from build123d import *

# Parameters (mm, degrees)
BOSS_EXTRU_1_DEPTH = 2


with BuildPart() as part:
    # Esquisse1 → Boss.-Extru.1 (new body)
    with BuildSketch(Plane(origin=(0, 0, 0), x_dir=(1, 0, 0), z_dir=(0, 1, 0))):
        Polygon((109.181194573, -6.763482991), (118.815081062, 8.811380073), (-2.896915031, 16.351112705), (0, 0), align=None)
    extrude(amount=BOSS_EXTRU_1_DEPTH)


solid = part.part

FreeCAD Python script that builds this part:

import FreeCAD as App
import Part
import Sketcher
Q = App.Units.Quantity

doc = App.newDocument("Part")
body = doc.addObject("PartDesign::Body", "Body")

sketch1 = body.newObject("Sketcher::SketchObject", "Sketch")
sketch1.AttachmentSupport = (doc.getObject("XZ_Plane"), [""])
sketch1.MapMode = "FlatFace"
sketch1.addGeometry([
    Part.LineSegment(App.Vector(109, 7, 0), App.Vector(119, -9, 0)),
    Part.LineSegment(App.Vector(119, -9, 0), App.Vector(-3, -16, 0)),
    Part.LineSegment(App.Vector(-3, -16, 0), App.Vector(0, 0, 0)),
    Part.LineSegment(App.Vector(0, 0, 0), App.Vector(109, 7, 0)),
], False)
sketch1.addConstraint([
    Sketcher.Constraint("Coincident", 0, 2, 1, 1),
    Sketcher.Constraint("Coincident", 1, 2, 2, 1),
    Sketcher.Constraint("Coincident", 2, 2, 3, 1),
    Sketcher.Constraint("Coincident", 3, 2, 0, 1),
    Sketcher.Constraint("Coincident", 2, 2, -1, 1),
    Sketcher.Constraint("Parallel", 1, 3),
    Sketcher.Constraint("DistanceX", -1, 1, 0, 2, Q("118.815081 mm")),
    Sketcher.Constraint("DistanceY", 0, 2, -1, 1, Q("8.81138 mm")),
    Sketcher.Constraint("DistanceX", 1, 2, 3, 2, Q("112.07811 mm")),
    Sketcher.Constraint("Distance", 0, Q("18.313605 mm")),
    Sketcher.Constraint("Distance", 1, Q("121.945306 mm")),
])
pad1 = body.newObject("PartDesign::Pad", "Pad")
pad1.Profile = sketch1
pad1.Length = 2
pad1.Reversed = True

doc.recompute()
